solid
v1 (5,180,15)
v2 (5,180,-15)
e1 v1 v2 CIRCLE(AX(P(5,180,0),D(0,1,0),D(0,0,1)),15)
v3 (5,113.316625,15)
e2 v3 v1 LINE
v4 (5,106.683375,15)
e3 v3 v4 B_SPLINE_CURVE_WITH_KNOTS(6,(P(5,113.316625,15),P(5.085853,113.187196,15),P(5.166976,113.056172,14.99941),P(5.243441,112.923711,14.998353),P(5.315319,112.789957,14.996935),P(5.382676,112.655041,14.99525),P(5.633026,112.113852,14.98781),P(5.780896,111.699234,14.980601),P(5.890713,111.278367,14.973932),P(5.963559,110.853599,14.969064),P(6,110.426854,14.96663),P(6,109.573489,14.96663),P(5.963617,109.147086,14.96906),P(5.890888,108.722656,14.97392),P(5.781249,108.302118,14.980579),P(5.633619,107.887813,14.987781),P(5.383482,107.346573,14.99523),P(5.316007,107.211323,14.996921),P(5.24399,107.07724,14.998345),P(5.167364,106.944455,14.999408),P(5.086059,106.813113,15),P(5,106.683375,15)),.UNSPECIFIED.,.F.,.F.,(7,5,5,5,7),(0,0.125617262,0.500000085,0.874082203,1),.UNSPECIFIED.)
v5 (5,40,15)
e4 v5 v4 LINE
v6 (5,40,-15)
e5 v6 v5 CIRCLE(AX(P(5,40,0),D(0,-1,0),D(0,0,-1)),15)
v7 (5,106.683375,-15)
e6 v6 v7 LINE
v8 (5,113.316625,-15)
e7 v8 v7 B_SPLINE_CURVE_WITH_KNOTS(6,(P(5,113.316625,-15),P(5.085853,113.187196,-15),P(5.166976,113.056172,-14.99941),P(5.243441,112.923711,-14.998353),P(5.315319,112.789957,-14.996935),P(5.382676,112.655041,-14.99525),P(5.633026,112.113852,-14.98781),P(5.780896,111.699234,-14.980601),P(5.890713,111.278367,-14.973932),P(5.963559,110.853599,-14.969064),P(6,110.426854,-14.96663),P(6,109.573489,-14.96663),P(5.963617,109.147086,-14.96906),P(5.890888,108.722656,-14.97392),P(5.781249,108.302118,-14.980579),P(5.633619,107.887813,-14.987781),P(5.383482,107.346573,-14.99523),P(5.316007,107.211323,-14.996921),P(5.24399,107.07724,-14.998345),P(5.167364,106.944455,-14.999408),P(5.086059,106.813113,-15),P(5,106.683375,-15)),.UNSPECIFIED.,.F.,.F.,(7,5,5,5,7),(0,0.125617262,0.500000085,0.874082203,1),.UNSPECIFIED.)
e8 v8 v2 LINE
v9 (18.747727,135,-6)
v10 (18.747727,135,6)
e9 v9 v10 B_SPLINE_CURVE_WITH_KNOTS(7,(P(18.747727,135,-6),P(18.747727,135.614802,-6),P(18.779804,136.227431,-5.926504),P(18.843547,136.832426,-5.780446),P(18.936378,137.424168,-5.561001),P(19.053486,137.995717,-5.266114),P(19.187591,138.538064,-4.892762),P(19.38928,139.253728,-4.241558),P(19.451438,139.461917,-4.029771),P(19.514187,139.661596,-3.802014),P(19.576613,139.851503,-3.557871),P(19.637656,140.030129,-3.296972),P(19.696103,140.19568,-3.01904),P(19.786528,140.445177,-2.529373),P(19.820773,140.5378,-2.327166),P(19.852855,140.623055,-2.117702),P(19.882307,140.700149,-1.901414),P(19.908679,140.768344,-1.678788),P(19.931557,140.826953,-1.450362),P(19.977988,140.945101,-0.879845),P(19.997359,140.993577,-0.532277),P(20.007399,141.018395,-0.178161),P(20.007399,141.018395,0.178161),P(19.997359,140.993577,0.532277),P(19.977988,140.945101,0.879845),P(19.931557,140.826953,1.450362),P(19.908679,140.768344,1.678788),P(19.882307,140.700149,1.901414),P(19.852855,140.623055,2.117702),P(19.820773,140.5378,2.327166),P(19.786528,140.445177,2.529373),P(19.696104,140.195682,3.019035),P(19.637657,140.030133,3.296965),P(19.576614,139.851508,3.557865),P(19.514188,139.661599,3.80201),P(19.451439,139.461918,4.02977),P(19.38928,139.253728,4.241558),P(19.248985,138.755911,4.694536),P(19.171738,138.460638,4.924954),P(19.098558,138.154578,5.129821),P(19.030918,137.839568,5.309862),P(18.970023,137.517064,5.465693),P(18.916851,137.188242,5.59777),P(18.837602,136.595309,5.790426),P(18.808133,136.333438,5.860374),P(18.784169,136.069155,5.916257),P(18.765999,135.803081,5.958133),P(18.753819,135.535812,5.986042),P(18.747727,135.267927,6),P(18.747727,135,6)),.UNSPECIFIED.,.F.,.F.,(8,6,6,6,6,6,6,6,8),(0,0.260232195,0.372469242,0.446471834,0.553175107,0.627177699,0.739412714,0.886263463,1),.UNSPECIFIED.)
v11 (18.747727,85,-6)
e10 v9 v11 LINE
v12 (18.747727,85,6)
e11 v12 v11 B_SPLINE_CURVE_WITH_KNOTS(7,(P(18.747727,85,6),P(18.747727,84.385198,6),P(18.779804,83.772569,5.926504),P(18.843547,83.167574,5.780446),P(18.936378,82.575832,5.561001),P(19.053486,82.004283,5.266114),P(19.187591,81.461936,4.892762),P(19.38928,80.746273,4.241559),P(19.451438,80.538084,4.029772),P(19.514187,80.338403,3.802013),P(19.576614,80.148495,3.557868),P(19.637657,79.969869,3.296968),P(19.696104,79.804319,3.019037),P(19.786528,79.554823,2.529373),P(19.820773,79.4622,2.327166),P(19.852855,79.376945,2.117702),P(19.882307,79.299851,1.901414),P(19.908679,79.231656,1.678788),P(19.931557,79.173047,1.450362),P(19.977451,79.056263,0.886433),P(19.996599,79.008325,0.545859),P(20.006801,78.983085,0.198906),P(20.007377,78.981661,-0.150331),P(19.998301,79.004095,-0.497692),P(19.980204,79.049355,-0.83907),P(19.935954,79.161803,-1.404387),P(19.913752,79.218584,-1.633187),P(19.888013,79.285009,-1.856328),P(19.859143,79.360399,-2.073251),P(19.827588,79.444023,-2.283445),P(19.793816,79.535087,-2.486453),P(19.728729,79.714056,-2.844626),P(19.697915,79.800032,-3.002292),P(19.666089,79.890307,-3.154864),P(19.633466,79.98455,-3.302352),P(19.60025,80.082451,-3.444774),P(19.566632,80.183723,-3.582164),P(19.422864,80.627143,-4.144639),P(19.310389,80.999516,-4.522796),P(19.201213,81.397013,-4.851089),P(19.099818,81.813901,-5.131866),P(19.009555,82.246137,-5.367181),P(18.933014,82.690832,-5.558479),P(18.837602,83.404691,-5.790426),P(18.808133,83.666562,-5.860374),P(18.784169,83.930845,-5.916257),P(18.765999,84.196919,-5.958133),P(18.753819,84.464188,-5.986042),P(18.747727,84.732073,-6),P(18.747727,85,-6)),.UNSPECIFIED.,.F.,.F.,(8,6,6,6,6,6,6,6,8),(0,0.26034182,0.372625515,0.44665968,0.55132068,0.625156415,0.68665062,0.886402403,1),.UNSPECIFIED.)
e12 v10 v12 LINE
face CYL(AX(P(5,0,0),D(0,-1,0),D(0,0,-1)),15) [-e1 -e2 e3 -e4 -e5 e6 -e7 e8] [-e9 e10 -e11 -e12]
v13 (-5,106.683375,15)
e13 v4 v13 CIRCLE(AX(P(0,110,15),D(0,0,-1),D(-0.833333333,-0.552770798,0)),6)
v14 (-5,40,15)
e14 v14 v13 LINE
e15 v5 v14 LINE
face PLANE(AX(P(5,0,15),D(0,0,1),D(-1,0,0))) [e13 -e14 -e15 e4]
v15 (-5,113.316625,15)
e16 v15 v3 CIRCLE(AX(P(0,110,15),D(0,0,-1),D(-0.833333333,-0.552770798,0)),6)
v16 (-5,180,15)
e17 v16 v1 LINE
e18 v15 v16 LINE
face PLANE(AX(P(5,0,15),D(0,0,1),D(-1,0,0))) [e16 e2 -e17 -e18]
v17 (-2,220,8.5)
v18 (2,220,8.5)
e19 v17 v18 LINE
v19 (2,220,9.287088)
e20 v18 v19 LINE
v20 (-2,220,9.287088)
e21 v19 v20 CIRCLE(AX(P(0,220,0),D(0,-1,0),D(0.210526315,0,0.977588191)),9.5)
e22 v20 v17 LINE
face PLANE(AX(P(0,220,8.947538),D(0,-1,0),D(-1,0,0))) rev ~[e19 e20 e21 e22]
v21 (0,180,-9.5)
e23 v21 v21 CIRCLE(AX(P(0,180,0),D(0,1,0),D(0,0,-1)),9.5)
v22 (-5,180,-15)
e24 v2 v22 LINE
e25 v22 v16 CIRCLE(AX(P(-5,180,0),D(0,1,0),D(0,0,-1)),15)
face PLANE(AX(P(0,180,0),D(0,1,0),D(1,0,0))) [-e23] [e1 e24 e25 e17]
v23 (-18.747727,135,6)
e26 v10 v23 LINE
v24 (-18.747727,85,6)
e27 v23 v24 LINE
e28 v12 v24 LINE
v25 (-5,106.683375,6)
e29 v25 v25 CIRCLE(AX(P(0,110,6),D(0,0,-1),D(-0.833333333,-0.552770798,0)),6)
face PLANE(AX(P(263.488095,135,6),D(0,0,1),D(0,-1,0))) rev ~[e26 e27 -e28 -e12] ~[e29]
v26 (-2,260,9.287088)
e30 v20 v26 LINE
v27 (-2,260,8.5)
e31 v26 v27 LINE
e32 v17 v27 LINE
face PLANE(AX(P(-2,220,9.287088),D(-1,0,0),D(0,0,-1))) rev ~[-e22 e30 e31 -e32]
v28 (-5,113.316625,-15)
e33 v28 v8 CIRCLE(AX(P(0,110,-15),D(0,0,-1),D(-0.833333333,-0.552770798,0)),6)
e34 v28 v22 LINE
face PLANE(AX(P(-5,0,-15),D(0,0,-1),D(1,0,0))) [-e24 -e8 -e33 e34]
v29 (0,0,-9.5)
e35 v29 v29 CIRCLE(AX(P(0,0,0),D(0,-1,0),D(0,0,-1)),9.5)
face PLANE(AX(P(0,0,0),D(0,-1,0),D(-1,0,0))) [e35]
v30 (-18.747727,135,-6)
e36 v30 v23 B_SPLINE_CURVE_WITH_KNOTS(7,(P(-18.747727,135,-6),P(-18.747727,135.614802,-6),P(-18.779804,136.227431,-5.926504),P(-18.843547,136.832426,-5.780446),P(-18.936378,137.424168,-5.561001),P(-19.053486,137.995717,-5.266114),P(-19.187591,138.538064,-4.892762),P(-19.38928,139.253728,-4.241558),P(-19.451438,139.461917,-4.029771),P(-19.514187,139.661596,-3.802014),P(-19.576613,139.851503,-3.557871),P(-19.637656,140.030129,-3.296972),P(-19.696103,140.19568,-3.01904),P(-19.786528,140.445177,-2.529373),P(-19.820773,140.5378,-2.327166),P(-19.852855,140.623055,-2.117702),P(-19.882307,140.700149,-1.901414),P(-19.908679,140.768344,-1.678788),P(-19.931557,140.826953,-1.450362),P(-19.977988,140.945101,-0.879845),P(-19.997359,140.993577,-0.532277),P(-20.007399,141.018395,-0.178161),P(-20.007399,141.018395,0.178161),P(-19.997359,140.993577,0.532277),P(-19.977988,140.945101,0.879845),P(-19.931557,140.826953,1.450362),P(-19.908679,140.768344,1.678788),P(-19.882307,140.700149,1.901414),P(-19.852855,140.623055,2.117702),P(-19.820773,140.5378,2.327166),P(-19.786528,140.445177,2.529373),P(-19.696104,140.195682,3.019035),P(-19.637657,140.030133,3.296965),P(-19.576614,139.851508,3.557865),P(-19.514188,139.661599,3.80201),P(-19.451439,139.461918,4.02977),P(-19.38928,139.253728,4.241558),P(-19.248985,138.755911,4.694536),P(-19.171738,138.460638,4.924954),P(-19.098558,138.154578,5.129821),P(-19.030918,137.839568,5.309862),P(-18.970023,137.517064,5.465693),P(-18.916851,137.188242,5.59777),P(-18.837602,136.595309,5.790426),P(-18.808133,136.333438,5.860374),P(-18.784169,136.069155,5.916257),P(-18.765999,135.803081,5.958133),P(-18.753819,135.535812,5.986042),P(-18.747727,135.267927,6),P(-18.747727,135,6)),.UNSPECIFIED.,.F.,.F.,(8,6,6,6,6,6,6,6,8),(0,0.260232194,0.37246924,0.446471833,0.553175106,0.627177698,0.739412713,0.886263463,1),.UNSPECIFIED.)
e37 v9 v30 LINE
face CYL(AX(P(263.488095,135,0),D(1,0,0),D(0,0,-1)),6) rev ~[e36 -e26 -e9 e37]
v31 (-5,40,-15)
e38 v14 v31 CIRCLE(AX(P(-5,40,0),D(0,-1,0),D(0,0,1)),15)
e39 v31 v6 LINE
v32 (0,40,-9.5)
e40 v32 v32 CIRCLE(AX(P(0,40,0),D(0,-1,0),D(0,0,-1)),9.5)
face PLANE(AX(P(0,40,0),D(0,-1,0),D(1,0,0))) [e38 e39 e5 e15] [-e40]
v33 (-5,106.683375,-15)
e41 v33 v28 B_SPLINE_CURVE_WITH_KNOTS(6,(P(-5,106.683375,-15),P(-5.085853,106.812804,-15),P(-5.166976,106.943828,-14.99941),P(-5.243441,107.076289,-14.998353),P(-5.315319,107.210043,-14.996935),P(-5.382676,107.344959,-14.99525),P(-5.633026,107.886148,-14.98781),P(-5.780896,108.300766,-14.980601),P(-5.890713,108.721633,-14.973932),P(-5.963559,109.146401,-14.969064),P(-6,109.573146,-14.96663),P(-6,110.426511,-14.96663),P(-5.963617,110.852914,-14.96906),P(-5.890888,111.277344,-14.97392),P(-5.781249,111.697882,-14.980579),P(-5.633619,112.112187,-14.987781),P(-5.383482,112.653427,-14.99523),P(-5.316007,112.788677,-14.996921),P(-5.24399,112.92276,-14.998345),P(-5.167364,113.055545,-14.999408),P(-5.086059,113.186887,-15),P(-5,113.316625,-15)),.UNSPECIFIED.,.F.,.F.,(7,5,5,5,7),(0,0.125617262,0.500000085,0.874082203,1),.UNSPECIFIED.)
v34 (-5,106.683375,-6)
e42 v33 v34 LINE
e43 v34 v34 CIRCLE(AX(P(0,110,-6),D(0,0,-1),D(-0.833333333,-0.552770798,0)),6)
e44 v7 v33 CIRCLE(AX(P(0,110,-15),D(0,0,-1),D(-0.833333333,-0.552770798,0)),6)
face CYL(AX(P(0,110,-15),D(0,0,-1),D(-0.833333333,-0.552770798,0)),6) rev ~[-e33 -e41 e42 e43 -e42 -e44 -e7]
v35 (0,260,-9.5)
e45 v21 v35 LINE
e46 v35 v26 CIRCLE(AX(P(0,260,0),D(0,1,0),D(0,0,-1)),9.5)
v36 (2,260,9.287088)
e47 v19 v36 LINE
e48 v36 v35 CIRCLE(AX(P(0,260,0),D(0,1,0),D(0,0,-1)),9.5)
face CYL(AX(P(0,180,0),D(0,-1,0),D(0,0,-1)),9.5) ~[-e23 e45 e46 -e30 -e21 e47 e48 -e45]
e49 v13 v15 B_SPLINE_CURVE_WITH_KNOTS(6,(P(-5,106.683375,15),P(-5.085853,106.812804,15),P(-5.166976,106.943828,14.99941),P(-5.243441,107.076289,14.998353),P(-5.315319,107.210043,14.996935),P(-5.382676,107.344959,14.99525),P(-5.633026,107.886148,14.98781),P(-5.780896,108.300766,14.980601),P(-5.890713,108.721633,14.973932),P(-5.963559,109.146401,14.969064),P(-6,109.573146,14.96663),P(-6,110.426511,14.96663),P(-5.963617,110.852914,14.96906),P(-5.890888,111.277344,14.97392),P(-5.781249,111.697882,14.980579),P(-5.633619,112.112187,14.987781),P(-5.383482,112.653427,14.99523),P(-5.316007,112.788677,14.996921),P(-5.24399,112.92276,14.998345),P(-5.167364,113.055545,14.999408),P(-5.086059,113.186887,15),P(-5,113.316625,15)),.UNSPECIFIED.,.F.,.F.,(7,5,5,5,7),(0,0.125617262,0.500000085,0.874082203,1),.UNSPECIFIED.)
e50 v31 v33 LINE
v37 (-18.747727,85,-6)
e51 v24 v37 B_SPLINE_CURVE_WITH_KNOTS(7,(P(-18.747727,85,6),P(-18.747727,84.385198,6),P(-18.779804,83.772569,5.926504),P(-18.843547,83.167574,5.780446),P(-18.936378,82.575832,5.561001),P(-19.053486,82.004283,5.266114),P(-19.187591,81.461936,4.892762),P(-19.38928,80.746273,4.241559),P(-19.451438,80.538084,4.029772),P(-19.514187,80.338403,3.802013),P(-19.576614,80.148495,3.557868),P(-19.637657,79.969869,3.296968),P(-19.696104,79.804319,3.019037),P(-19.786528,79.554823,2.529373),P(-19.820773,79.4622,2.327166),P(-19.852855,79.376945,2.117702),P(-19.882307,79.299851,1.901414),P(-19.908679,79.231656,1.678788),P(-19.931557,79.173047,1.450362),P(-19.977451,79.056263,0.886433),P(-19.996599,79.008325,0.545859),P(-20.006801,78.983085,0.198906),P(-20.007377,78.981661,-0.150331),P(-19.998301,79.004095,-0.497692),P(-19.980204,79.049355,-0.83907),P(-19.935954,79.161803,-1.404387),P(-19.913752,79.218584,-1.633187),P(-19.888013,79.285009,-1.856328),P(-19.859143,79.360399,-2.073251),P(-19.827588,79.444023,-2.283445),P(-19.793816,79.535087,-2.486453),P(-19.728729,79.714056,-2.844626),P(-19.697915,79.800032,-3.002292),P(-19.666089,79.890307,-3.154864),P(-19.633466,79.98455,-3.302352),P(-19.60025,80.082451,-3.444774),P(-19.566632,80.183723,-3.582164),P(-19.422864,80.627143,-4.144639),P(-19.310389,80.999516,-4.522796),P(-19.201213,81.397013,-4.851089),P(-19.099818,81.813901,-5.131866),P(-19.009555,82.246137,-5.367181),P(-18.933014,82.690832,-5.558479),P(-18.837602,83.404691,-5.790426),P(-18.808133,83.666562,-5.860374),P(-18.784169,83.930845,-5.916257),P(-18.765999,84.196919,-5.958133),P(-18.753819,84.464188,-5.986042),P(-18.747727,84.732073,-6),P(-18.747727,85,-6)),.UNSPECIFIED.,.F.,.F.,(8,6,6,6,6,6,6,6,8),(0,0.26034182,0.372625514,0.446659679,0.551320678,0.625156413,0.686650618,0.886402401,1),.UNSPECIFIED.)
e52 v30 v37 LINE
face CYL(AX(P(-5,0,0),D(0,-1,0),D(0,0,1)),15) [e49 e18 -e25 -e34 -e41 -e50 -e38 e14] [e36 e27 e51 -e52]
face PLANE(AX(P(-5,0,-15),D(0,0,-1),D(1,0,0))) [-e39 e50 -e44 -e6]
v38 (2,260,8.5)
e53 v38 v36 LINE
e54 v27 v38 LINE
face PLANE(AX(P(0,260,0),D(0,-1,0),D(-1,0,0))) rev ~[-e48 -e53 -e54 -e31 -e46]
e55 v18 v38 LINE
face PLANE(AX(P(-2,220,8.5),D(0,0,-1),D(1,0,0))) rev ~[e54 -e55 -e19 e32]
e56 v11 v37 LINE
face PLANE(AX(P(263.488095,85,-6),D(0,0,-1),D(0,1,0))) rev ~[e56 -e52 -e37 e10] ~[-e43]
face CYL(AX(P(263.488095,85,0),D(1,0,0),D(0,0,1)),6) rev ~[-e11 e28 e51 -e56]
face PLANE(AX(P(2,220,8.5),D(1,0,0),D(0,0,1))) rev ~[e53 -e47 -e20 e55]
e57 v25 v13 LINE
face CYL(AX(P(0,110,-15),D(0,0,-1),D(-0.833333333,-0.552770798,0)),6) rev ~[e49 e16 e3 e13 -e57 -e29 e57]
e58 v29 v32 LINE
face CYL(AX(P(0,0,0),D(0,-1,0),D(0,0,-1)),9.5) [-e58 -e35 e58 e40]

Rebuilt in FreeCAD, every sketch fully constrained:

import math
import FreeCAD as App
import Part
import Sketcher
from FreeCAD import Vector

doc = App.newDocument("Part")
body = doc.addObject("PartDesign::Body", "Body")

sketch1 = body.newObject("Sketcher::SketchObject", "Sketch")
sketch1.AttachmentSupport = (doc.getObject("XZ_Plane"), [""])
sketch1.MapMode = "FlatFace"
sketch1.addGeometry(Part.LineSegment(Vector(5, -15, 0), Vector(-5, -15, 0)), False)
sketch1.addGeometry(Part.ArcOfCircle(Part.Circle(Vector(-5, 0, 0), Vector(0, 0, 1), 15), math.radians(90), math.radians(270)), False)
sketch1.addGeometry(Part.LineSegment(Vector(-5, 15, 0), Vector(5, 15, 0)), False)
sketch1.addGeometry(Part.ArcOfCircle(Part.Circle(Vector(5, 0, 0), Vector(0, 0, 1), 15), math.radians(-90), math.radians(90)), False)
sketch1.addConstraint(Sketcher.Constraint("Tangent", 0, 2, 1, 2))
sketch1.addConstraint(Sketcher.Constraint("Tangent", 1, 1, 2, 1))
sketch1.addConstraint(Sketcher.Constraint("Tangent", 2, 2, 3, 2))
sketch1.addConstraint(Sketcher.Constraint("Tangent", 3, 1, 0, 1))
sketch1.addConstraint(Sketcher.Constraint("Horizontal", 0))
sketch1.addConstraint(Sketcher.Constraint("Horizontal", 2))
sketch1.addConstraint(Sketcher.Constraint("Symmetric", 1, 3, 3, 3, -1, 1))
sketch1.addConstraint(Sketcher.Constraint("Radius", 1, 15.0))
sketch1.addConstraint(Sketcher.Constraint("DistanceX", 0, 2, 0, 1, 10.0))
pad1 = body.newObject("PartDesign::Pad", "Pad")
pad1.Profile = sketch1
pad1.Length = 260
pad1.Reversed = True

sketch2 = body.newObject("Sketcher::SketchObject", "Sketch001")
sketch2.AttachmentSupport = (doc.getObject("XZ_Plane"), [""])
sketch2.MapMode = "FlatFace"
sketch2.addGeometry(Part.LineSegment(Vector(-5, -15, 0), Vector(5, -15, 0)), False)
sketch2.addGeometry(Part.ArcOfCircle(Part.Circle(Vector(5, 0, 0), Vector(0, 0, 1), 15), math.radians(-90), math.radians(90)), False)
sketch2.addGeometry(Part.LineSegment(Vector(5, 15, 0), Vector(-5, 15, 0)), False)
sketch2.addGeometry(Part.ArcOfCircle(Part.Circle(Vector(-5, 0, 0), Vector(0, 0, 1), 15), math.radians(90), math.radians(270)), False)
sketch2.addGeometry(Part.Circle(Vector(0, 0, 0), Vector(0, 0, 1), 10), False)
sketch2.addConstraint(Sketcher.Constraint("Tangent", 0, 2, 1, 1))
sketch2.addConstraint(Sketcher.Constraint("Tangent", 1, 2, 2, 1))
sketch2.addConstraint(Sketcher.Constraint("Tangent", 2, 2, 3, 1))
sketch2.addConstraint(Sketcher.Constraint("Tangent", 3, 2, 0, 1))
sketch2.addConstraint(Sketcher.Constraint("Horizontal", 0))
sketch2.addConstraint(Sketcher.Constraint("Horizontal", 2))
sketch2.addConstraint(Sketcher.Constraint("Coincident", 4, 3, -1, 1))
sketch2.addConstraint(Sketcher.Constraint("Symmetric", 1, 3, 3, 3, -1, 1))
sketch2.addConstraint(Sketcher.Constraint("Diameter", 4, 19.0))
sketch2.addConstraint(Sketcher.Constraint("Radius", 1, 15.0))
sketch2.addConstraint(Sketcher.Constraint("DistanceX", 0, 1, 0, 2, 10.0))
pocket1 = body.newObject("PartDesign::Pocket", "Pocket")
pocket1.Profile = sketch2
pocket1.Length = 40

sketch3 = body.newObject("Sketcher::SketchObject", "Sketch002")
sketch3.AttachmentSupport = (doc.getObject("XZ_Plane"), [""])
sketch3.MapMode = "FlatFace"
sketch3.AttachmentOffset = App.Placement(Vector(0, 0, -180), App.Rotation())
sketch3.addGeometry(Part.LineSegment(Vector(-5, 15, 0), Vector(5, 15, 0)), False)
sketch3.addGeometry(Part.ArcOfCircle(Part.Circle(Vector(5, 0, 0), Vector(0, 0, 1), 15), math.radians(-90), math.radians(90)), False)
sketch3.addGeometry(Part.LineSegment(Vector(5, -15, 0), Vector(-5, -15, 0)), False)
sketch3.addGeometry(Part.ArcOfCircle(Part.Circle(Vector(-5, 0, 0), Vector(0, 0, 1), 15), math.radians(90), math.radians(270)), False)
sketch3.addGeometry(Part.Circle(Vector(0, 0, 0), Vector(0, 0, 1), 10), False)
sketch3.addConstraint(Sketcher.Constraint("Tangent", 0, 2, 1, 2))
sketch3.addConstraint(Sketcher.Constraint("Tangent", 1, 1, 2, 1))
sketch3.addConstraint(Sketcher.Constraint("Tangent", 2, 2, 3, 2))
sketch3.addConstraint(Sketcher.Constraint("Tangent", 3, 1, 0, 1))
sketch3.addConstraint(Sketcher.Constraint("Horizontal", 0))
sketch3.addConstraint(Sketcher.Constraint("Horizontal", 2))
sketch3.addConstraint(Sketcher.Constraint("Coincident", 4, 3, -1, 1))
sketch3.addConstraint(Sketcher.Constraint("Symmetric", 1, 3, 3, 3, -1, 1))
sketch3.addConstraint(Sketcher.Constraint("Diameter", 4, 19.0))
sketch3.addConstraint(Sketcher.Constraint("Radius", 1, 15.0))
sketch3.addConstraint(Sketcher.Constraint("DistanceX", 0, 1, 0, 2, 10.0))
pocket2 = body.newObject("PartDesign::Pocket", "Pocket001")
pocket2.Profile = sketch3
pocket2.Length = 80

sketch4 = body.newObject("Sketcher::SketchObject", "Sketch003")
sketch4.AttachmentSupport = (doc.getObject("YZ_Plane"), [""])
sketch4.MapMode = "FlatFace"
sketch4.addGeometry(Part.LineSegment(Vector(85, 6, 0), Vector(135, 6, 0)), False)
sketch4.addGeometry(Part.ArcOfCircle(Part.Circle(Vector(135, 0, 0), Vector(0, 0, 1), 6), math.radians(-90), math.radians(90)), False)
sketch4.addGeometry(Part.LineSegment(Vector(135, -6, 0), Vector(85, -6, 0)), False)
sketch4.addGeometry(Part.ArcOfCircle(Part.Circle(Vector(85, 0, 0), Vector(0, 0, 1), 6), math.radians(90), math.radians(270)), False)
sketch4.addConstraint(Sketcher.Constraint("Tangent", 0, 2, 1, 2))
sketch4.addConstraint(Sketcher.Constraint("Tangent", 1, 1, 2, 1))
sketch4.addConstraint(Sketcher.Constraint("Tangent", 2, 2, 3, 2))
sketch4.addConstraint(Sketcher.Constraint("Tangent", 3, 1, 0, 1))
sketch4.addConstraint(Sketcher.Constraint("Horizontal", 0))
sketch4.addConstraint(Sketcher.Constraint("Horizontal", 2))
sketch4.addConstraint(Sketcher.Constraint("PointOnObject", 1, 3, -1))
sketch4.addConstraint(Sketcher.Constraint("Radius", 1, 6.0))
sketch4.addConstraint(Sketcher.Constraint("DistanceX", 0, 1, 0, 2, 50.0))
sketch4.addConstraint(Sketcher.Constraint("DistanceX", -1, 1, 1, 3, 135.0))
pocket3 = body.newObject("PartDesign::Pocket", "Pocket002")
pocket3.Profile = sketch4
pocket3.Type = "ThroughAll"
pocket3.Midplane = True

sketch5 = body.newObject("Sketcher::SketchObject", "Sketch004")
sketch5.AttachmentSupport = (doc.getObject("XY_Plane"), [""])
sketch5.MapMode = "FlatFace"
sketch5.AttachmentOffset = App.Placement(Vector(0, 0, -15), App.Rotation())
sketch5.addGeometry(Part.Circle(Vector(0, 110, 0), Vector(0, 0, 1), 6), False)
sketch5.addConstraint(Sketcher.Constraint("PointOnObject", 0, 3, -2))
sketch5.addConstraint(Sketcher.Constraint("Diameter", 0, 12.0))
sketch5.addConstraint(Sketcher.Constraint("DistanceY", -1, 1, 0, 3, 110.0))
pocket4 = body.newObject("PartDesign::Pocket", "Pocket003")
pocket4.Profile = sketch5
pocket4.Length = 80
pocket4.Reversed = True

sketch6 = body.newObject("Sketcher::SketchObject", "Sketch005")
sketch6.AttachmentSupport = (doc.getObject("XZ_Plane"), [""])
sketch6.MapMode = "FlatFace"
sketch6.AttachmentOffset = App.Placement(Vector(0, 0, -220), App.Rotation())
sketch6.addGeometry(Part.LineSegment(Vector(-2, 8.5, 0), Vector(-2, 9.3, 0)), False)
sketch6.addGeometry(Part.ArcOfCircle(Part.Circle(Vector(0, 0, 0), Vector(0, 0, 1), 9.5), math.radians(78), math.radians(102)), False)
sketch6.addGeometry(Part.LineSegment(Vector(2, 9.3, 0), Vector(2, 8.5, 0)), False)
sketch6.addGeometry(Part.LineSegment(Vector(2, 8.5, 0), Vector(-2, 8.5, 0)), False)
sketch6.addConstraint(Sketcher.Constraint("Coincident", 0, 2, 1, 2))
sketch6.addConstraint(Sketcher.Constraint("Coincident", 1, 1, 2, 1))
sketch6.addConstraint(Sketcher.Constraint("Coincident", 2, 2, 3, 1))
sketch6.addConstraint(Sketcher.Constraint("Coincident", 3, 2, 0, 1))
sketch6.addConstraint(Sketcher.Constraint("Vertical", 0))
sketch6.addConstraint(Sketcher.Constraint("Vertical", 2))
sketch6.addConstraint(Sketcher.Constraint("Horizontal", 3))
sketch6.addConstraint(Sketcher.Constraint("Coincident", 1, 3, -1, 1))
sketch6.addConstraint(Sketcher.Constraint("Horizontal", 0, 2, 1, 1))
sketch6.addConstraint(Sketcher.Constraint("Radius", 1, 9.5))
sketch6.addConstraint(Sketcher.Constraint("DistanceX", 3, 2, 3, 1, 4.0))
sketch6.addConstraint(Sketcher.Constraint("DistanceY", -1, 1, 2, 2, 8.5))
pocket5 = body.newObject("PartDesign::Pocket", "Pocket004")
pocket5.Profile = sketch6
pocket5.Length = 40

doc.recompute()
